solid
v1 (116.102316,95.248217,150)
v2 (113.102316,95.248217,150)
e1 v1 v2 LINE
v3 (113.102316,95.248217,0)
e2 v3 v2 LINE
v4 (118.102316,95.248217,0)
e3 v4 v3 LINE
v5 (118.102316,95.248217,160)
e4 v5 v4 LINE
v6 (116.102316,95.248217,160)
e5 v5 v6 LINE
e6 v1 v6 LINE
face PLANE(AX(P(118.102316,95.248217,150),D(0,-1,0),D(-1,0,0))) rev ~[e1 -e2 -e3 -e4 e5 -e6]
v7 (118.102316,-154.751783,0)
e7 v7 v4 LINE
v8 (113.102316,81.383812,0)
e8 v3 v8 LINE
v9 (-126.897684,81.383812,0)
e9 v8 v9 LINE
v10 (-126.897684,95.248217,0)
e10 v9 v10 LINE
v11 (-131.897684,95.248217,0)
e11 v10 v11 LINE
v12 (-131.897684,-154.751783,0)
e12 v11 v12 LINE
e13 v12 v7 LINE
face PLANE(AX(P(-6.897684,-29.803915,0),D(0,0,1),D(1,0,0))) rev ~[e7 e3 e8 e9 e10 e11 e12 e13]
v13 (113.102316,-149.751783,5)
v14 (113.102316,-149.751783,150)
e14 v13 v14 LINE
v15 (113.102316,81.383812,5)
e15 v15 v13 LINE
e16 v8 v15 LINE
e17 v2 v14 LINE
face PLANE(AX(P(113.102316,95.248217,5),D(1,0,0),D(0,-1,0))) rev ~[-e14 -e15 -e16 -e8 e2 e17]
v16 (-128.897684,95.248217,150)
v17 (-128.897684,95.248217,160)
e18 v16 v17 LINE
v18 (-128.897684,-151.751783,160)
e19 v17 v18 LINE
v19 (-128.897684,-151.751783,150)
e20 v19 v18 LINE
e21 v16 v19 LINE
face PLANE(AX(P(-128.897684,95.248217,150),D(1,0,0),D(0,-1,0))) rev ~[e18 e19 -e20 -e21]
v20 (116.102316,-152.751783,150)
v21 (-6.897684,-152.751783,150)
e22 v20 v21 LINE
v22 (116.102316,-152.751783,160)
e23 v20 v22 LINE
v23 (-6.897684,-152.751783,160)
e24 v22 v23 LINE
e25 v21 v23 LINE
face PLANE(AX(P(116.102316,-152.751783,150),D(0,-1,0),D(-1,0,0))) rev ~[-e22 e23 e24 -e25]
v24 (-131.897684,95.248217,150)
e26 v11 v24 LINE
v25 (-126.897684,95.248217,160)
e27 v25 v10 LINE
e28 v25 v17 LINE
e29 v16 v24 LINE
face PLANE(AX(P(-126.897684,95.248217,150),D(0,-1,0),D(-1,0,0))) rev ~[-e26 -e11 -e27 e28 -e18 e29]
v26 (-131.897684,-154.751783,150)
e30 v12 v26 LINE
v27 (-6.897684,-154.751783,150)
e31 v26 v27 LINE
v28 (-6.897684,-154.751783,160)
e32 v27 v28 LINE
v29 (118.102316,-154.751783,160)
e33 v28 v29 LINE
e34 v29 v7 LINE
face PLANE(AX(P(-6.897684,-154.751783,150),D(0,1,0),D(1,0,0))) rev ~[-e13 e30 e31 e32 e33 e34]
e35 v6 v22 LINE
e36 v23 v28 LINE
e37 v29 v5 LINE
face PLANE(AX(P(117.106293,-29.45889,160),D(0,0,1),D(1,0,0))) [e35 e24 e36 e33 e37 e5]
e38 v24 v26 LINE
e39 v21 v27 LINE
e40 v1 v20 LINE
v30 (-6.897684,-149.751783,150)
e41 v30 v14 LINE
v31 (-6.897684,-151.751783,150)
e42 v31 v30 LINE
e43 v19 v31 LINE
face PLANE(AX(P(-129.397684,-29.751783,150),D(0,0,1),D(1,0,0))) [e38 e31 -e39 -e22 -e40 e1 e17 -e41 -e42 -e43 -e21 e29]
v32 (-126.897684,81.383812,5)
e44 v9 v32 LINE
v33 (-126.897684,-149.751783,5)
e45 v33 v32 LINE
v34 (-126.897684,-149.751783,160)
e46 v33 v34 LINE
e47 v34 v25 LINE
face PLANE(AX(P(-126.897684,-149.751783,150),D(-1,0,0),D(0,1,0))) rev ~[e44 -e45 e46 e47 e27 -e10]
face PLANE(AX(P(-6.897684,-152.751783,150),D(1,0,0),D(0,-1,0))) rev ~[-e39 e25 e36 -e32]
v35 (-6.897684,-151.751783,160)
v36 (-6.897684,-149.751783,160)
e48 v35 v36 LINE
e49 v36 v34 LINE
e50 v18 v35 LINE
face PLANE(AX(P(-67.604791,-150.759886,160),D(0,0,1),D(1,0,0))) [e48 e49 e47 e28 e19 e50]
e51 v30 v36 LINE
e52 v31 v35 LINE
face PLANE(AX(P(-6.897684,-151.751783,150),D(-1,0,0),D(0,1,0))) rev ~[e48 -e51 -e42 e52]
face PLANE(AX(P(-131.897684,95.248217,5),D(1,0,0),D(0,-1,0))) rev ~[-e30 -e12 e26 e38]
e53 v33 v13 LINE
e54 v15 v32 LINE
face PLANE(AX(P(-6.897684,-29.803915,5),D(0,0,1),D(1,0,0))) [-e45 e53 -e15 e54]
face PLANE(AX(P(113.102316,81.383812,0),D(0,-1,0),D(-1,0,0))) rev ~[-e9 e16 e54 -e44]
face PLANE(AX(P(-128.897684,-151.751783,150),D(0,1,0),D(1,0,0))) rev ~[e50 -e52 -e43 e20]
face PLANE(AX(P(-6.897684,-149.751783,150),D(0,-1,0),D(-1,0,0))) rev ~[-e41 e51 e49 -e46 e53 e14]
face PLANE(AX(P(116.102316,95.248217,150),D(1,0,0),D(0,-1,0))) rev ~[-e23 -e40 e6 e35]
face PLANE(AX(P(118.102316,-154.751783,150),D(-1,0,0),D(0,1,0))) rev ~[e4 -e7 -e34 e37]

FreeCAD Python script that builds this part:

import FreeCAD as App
import Part
import Sketcher
Q = App.Units.Quantity


def add_polygon(sketch, points):
    """Adds a closed chain of lines whose ends are joined by coincident constraints."""
    first, n = sketch.GeometryCount, len(points)
    for a, b in zip(points, points[1:] + points[:1]):
        sketch.addGeometry(Part.LineSegment(App.Vector(*a, 0), App.Vector(*b, 0)), False)
    for i in range(n):
        sketch.addConstraint(Sketcher.Constraint("Coincident", first + i, 2, first + (i + 1) % n, 1))

doc = App.newDocument("Part")
body = doc.addObject("PartDesign::Body", "Body")

# Sketch on XY plane
sketch1 = doc.addObject("Sketcher::SketchObject", "Sketch")
body.addObject(sketch1)
sketch1.AttachmentSupport = (doc.XY_Plane, [""])
sketch1.MapMode = "FlatFace"
add_polygon(sketch1, [(-127, 95), (-132, 95), (-132, -155), (118, -155), (118, 95), (113, 95), (113, 81), (-127, 81)])  # lines 0-7
sketch1.addConstraint([
    Sketcher.Constraint("Horizontal", 0),
    Sketcher.Constraint("Vertical", 1),
    Sketcher.Constraint("Horizontal", 2),
    Sketcher.Constraint("Vertical", 3),
    Sketcher.Constraint("Horizontal", 4),
    Sketcher.Constraint("Vertical", 5),
    Sketcher.Constraint("Horizontal", 6),
    Sketcher.Constraint("Vertical", 7),
    Sketcher.Constraint("Horizontal", 0, 2, 3, 2),
    Sketcher.Constraint("Equal", 0, 4),
    Sketcher.Constraint("Equal", 2, 1),
    Sketcher.Constraint("DistanceX", 0, 2, 0, 1, Q("5 mm")),
    Sketcher.Constraint("DistanceX", 2, 1, 2, 2, Q("250 mm")),
    Sketcher.Constraint("DistanceY", 5, 2, 5, 1, Q("13.864405 mm")),
    Sketcher.Constraint("DistanceX", 0, 2, -1, 1, Q("131.897684 mm")),
    Sketcher.Constraint("DistanceY", -1, 1, 0, 2, Q("95.248217 mm")),
])
pad1 = doc.addObject("PartDesign::Pad", "Pad")
body.addObject(pad1)
pad1.Profile = sketch1
pad1.Length = 5

# Sketch on XY plane
sketch2 = doc.addObject("Sketcher::SketchObject", "Sketch001")
body.addObject(sketch2)
sketch2.AttachmentSupport = (doc.XY_Plane, [""])
sketch2.MapMode = "FlatFace"
sketch2.AttachmentOffset = App.Placement(App.Vector(0, 0, 5), App.Rotation())
add_polygon(sketch2, [(-127, 95), (-132, 95), (-132, -155), (118, -155), (118, 95), (113, 95), (113, -150), (-127, -150)])  # lines 0-7
sketch2.addConstraint([
    Sketcher.Constraint("Horizontal", 0),
    Sketcher.Constraint("Vertical", 1),
    Sketcher.Constraint("Horizontal", 2),
    Sketcher.Constraint("Vertical", 3),
    Sketcher.Constraint("Horizontal", 4),
    Sketcher.Constraint("Vertical", 5),
    Sketcher.Constraint("Horizontal", 6),
    Sketcher.Constraint("Vertical", 7),
    Sketcher.Constraint("Horizontal", 0, 2, 3, 2),
    Sketcher.Constraint("Equal", 0, 4),
    Sketcher.Constraint("Equal", 2, 1),
    Sketcher.Constraint("DistanceX", 0, 2, 0, 1, Q("5 mm")),
    Sketcher.Constraint("DistanceX", 2, 1, 2, 2, Q("250 mm")),
    Sketcher.Constraint("DistanceY", 5, 2, 5, 1, Q("245 mm")),
    Sketcher.Constraint("DistanceX", 0, 2, -1, 1, Q("131.897684 mm")),
    Sketcher.Constraint("DistanceY", -1, 1, 0, 2, Q("95.248217 mm")),
])
pad2 = doc.addObject("PartDesign::Pad", "Pad001")
body.addObject(pad2)
pad2.Profile = sketch2
pad2.Length = 145

# Sketch on XY plane
sketch3 = doc.addObject("Sketcher::SketchObject", "Sketch002")
body.addObject(sketch3)
sketch3.AttachmentSupport = (doc.XY_Plane, [""])
sketch3.MapMode = "FlatFace"
sketch3.AttachmentOffset = App.Placement(App.Vector(0, 0, 150), App.Rotation())
add_polygon(sketch3, [(-128.9, -151.8), (-6.9, -151.8), (-6.9, -149.8), (-126.9, -149.8), (-126.9, 95.2), (-128.9, 95.2)])  # lines 0-5
sketch3.addConstraint([
    Sketcher.Constraint("Horizontal", 0),
    Sketcher.Constraint("Vertical", 1),
    Sketcher.Constraint("Horizontal", 2),
    Sketcher.Constraint("Vertical", 3),
    Sketcher.Constraint("Horizontal", 4),
    Sketcher.Constraint("Vertical", 5),
    Sketcher.Constraint("Equal", 4, 1),
    Sketcher.Constraint("DistanceX", 0, 1, 0, 2, Q("122 mm")),
    Sketcher.Constraint("DistanceX", 2, 2, 2, 1, Q("120 mm")),
    Sketcher.Constraint("DistanceY", 3, 1, 3, 2, Q("245 mm")),
    Sketcher.Constraint("DistanceX", 0, 2, -1, 1, Q("6.897684 mm")),
    Sketcher.Constraint("DistanceY", 0, 2, -1, 1, Q("151.751783 mm")),
])
pad3 = doc.addObject("PartDesign::Pad", "Pad002")
body.addObject(pad3)
pad3.Profile = sketch3
pad3.Length = 10

# Sketch on XY plane
sketch4 = doc.addObject("Sketcher::SketchObject", "Sketch003")
body.addObject(sketch4)
sketch4.AttachmentSupport = (doc.XY_Plane, [""])
sketch4.MapMode = "FlatFace"
sketch4.AttachmentOffset = App.Placement(App.Vector(0, 0, 150), App.Rotation())
add_polygon(sketch4, [(118.1, 95.2), (116.1, 95.2), (116.1, -152.8), (-6.9, -152.8), (-6.9, -154.8), (118.1, -154.8)])  # lines 0-5
sketch4.addConstraint([
    Sketcher.Constraint("Horizontal", 0),
    Sketcher.Constraint("Vertical", 1),
    Sketcher.Constraint("Horizontal", 2),
    Sketcher.Constraint("Vertical", 3),
    Sketcher.Constraint("Horizontal", 4),
    Sketcher.Constraint("Vertical", 5),
    Sketcher.Constraint("Equal", 0, 3),
    Sketcher.Constraint("DistanceX", 0, 2, 0, 1, Q("2 mm")),
    Sketcher.Constraint("DistanceX", 2, 2, 2, 1, Q("123 mm")),
    Sketcher.Constraint("DistanceY", 1, 2, 1, 1, Q("248 mm")),
    Sketcher.Constraint("DistanceX", -1, 1, 0, 2, Q("116.102316 mm")),
    Sketcher.Constraint("DistanceY", -1, 1, 0, 2, Q("95.248217 mm")),
])
pad4 = doc.addObject("PartDesign::Pad", "Pad003")
body.addObject(pad4)
pad4.Profile = sketch4
pad4.Length = 10

doc.recompute()
